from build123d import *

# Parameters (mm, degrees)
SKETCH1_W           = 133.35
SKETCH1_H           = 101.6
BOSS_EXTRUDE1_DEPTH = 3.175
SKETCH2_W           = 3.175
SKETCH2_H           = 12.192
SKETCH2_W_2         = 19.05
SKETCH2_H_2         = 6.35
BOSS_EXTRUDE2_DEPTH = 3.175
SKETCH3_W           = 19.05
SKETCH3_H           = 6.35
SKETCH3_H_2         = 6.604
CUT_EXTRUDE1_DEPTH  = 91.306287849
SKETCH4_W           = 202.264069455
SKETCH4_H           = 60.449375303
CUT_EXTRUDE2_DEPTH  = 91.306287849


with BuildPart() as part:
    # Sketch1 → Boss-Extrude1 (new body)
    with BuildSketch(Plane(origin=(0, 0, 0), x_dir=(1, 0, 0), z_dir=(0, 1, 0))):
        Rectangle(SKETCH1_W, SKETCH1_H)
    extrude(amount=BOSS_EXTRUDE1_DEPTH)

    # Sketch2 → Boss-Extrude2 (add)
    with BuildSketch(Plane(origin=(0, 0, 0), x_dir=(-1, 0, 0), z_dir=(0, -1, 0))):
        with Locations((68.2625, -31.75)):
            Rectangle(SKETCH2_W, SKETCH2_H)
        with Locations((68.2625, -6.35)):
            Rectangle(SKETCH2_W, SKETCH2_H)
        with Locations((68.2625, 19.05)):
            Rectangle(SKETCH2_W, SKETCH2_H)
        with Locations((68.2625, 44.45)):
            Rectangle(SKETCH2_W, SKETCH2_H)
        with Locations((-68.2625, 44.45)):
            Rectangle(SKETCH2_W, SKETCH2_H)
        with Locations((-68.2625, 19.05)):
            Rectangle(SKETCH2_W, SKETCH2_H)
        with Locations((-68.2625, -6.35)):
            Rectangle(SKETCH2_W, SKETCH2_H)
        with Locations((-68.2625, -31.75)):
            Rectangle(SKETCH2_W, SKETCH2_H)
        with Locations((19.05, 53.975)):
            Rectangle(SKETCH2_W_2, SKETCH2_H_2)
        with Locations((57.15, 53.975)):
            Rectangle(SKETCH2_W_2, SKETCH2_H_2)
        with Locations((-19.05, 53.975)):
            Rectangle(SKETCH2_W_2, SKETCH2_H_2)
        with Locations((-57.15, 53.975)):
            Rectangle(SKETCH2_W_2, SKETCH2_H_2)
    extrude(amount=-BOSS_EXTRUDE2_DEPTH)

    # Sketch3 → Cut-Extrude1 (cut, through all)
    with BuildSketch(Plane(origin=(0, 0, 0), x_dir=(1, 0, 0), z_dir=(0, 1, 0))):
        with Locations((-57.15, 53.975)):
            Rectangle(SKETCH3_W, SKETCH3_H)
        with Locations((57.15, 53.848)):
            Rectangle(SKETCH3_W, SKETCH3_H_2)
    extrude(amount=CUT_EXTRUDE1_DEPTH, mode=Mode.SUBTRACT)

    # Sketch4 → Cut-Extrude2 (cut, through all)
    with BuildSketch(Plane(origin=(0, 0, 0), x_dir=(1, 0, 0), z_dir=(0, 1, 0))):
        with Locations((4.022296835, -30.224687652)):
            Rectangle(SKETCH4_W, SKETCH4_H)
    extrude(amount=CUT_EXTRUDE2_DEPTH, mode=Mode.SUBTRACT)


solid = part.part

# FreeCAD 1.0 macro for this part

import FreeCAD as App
import Part
import Sketcher

V = App.Vector
Q = App.Units.Quantity


def add_polygon(sketch, points):
    """Adds a closed chain of lines whose ends are joined by coincident constraints."""
    first, n = sketch.GeometryCount, len(points)
    for a, b in zip(points, points[1:] + points[:1]):
        sketch.addGeometry(Part.LineSegment(App.Vector(*a, 0), App.Vector(*b, 0)), False)
    for i in range(n):
        sketch.addConstraint(Sketcher.Constraint("Coincident", first + i, 2, first + (i + 1) % n, 1))

doc = App.newDocument("Part")
params = doc.addObject("Spreadsheet::Sheet", "Params")
for row, (alias, value) in enumerate([
    ("sketch1_height", "4 in"),
    ("sketch1_width", "5.25 in"),
    ("pad1_length", "0.125 in"),
    ("sketch2_width", "0.75 in"),
    ("sketch2_height", "0.48 in"),
    ("sketch2_height2", "0.25 in"),
    ("pad2_length", "0.125 in"),
    ("sketch3_width", "0.75 in"),
    ("sketch3_height", "0.25 in"),
    ("sketch3_height2", "0.26 in"),
], start=1):
    params.set(f"A{row}", alias)
    params.set(f"B{row}", "=" + value)
    params.setAlias(f"B{row}", alias)

body = doc.addObject("PartDesign::Body", "Body")

# Sketch on XZ plane
sketch1 = body.newObject("Sketcher::SketchObject", "Sketch")
sketch1.AttachmentSupport = (doc.getObject("XZ_Plane"), [""])
sketch1.MapMode = "FlatFace"
add_polygon(sketch1, [(-66.675, -50.8), (-66.675, 50.8), (66.675, 50.8), (66.675, -50.8)])  # lines 0-3
sketch1.addConstraint(Sketcher.Constraint("Vertical", 0))
sketch1.addConstraint(Sketcher.Constraint("Horizontal", 1))
sketch1.addConstraint(Sketcher.Constraint("Vertical", 2))
sketch1.addConstraint(Sketcher.Constraint("Horizontal", 3))
sketch1.addConstraint(Sketcher.Constraint("Symmetric", 0, 2, 2, 2, -1, 1))
sketch1.addConstraint(Sketcher.Constraint("DistanceY", 0, 1, 0, 2, Q("4 in")))
sketch1.addConstraint(Sketcher.Constraint("DistanceX", 1, 1, 1, 2, Q("5.25 in")))
sketch1.setExpression("Constraints[9]", "Params.sketch1_height")
sketch1.setExpression("Constraints[10]", "Params.sketch1_width")
pad1 = body.newObject("PartDesign::Pad", "Pad")
pad1.Profile = sketch1
pad1.setExpression("Length", "Params.pad1_length")
pad1.Reversed = True

# Sketch on XZ plane
sketch2 = body.newObject("Sketcher::SketchObject", "Sketch001")
sketch2.AttachmentSupport = (doc.getObject("XZ_Plane"), [""])
sketch2.MapMode = "FlatFace"
add_polygon(sketch2, [(-66.675, 25.654), (-66.675, 37.846), (-69.85, 37.846), (-69.85, 25.654)])  # lines 0-3
add_polygon(sketch2, [(-66.675, 0.254), (-66.675, 12.446), (-69.85, 12.446), (-69.85, 0.254)])  # lines 4-7
add_polygon(sketch2, [(-66.675, -25.146), (-66.675, -12.954), (-69.85, -12.954), (-69.85, -25.146)])  # lines 8-11
add_polygon(sketch2, [(-66.675, -50.546), (-66.675, -38.354), (-69.85, -38.354), (-69.85, -50.546)])  # lines 12-15
add_polygon(sketch2, [(69.85, -50.546), (69.85, -38.354), (66.675, -38.354), (66.675, -50.546)])  # lines 16-19
add_polygon(sketch2, [(69.85, -25.146), (69.85, -12.954), (66.675, -12.954), (66.675, -25.146)])  # lines 20-23
add_polygon(sketch2, [(69.85, 0.254), (69.85, 12.446), (66.675, 12.446), (66.675, 0.254)])  # lines 24-27
add_polygon(sketch2, [(69.85, 25.654), (69.85, 37.846), (66.675, 37.846), (66.675, 25.654)])  # lines 28-31
add_polygon(sketch2, [(-9.525, -57.15), (-9.525, -50.8), (-28.575, -50.8), (-28.575, -57.15)])  # lines 32-35
add_polygon(sketch2, [(-47.625, -57.15), (-47.625, -50.8), (-66.675, -50.8), (-66.675, -57.15)])  # lines 36-39
add_polygon(sketch2, [(28.575, -57.15), (28.575, -50.8), (9.525, -50.8), (9.525, -57.15)])  # lines 40-43
add_polygon(sketch2, [(66.675, -57.15), (66.675, -50.8), (47.625, -50.8), (47.625, -57.15)])  # lines 44-47
sketch2.addConstraint(Sketcher.Constraint("Vertical", 0))
sketch2.addConstraint(Sketcher.Constraint("Horizontal", 1))
sketch2.addConstraint(Sketcher.Constraint("Vertical", 2))
sketch2.addConstraint(Sketcher.Constraint("Horizontal", 3))
sketch2.addConstraint(Sketcher.Constraint("Vertical", 4))
sketch2.addConstraint(Sketcher.Constraint("Horizontal", 5))
sketch2.addConstraint(Sketcher.Constraint("Vertical", 6))
sketch2.addConstraint(Sketcher.Constraint("Horizontal", 7))
sketch2.addConstraint(Sketcher.Constraint("Vertical", 8))
sketch2.addConstraint(Sketcher.Constraint("Horizontal", 9))
sketch2.addConstraint(Sketcher.Constraint("Vertical", 10))
sketch2.addConstraint(Sketcher.Constraint("Horizontal", 11))
sketch2.addConstraint(Sketcher.Constraint("Vertical", 12))
sketch2.addConstraint(Sketcher.Constraint("Horizontal", 13))
sketch2.addConstraint(Sketcher.Constraint("Vertical", 14))
sketch2.addConstraint(Sketcher.Constraint("Horizontal", 15))
sketch2.addConstraint(Sketcher.Constraint("Vertical", 16))
sketch2.addConstraint(Sketcher.Constraint("Horizontal", 17))
sketch2.addConstraint(Sketcher.Constraint("Vertical", 18))
sketch2.addConstraint(Sketcher.Constraint("Horizontal", 19))
sketch2.addConstraint(Sketcher.Constraint("Vertical", 20))
sketch2.addConstraint(Sketcher.Constraint("Horizontal", 21))
sketch2.addConstraint(Sketcher.Constraint("Vertical", 22))
sketch2.addConstraint(Sketcher.Constraint("Horizontal", 23))
sketch2.addConstraint(Sketcher.Constraint("Vertical", 24))
sketch2.addConstraint(Sketcher.Constraint("Horizontal", 25))
sketch2.addConstraint(Sketcher.Constraint("Vertical", 26))
sketch2.addConstraint(Sketcher.Constraint("Horizontal", 27))
sketch2.addConstraint(Sketcher.Constraint("Vertical", 28))
sketch2.addConstraint(Sketcher.Constraint("Horizontal", 29))
sketch2.addConstraint(Sketcher.Constraint("Vertical", 30))
sketch2.addConstraint(Sketcher.Constraint("Horizontal", 31))
sketch2.addConstraint(Sketcher.Constraint("Vertical", 32))
sketch2.addConstraint(Sketcher.Constraint("Horizontal", 33))
sketch2.addConstraint(Sketcher.Constraint("Vertical", 34))
sketch2.addConstraint(Sketcher.Constraint("Horizontal", 35))
sketch2.addConstraint(Sketcher.Constraint("Vertical", 36))
sketch2.addConstraint(Sketcher.Constraint("Horizontal", 37))
sketch2.addConstraint(Sketcher.Constraint("Vertical", 38))
sketch2.addConstraint(Sketcher.Constraint("Horizontal", 39))
sketch2.addConstraint(Sketcher.Constraint("Vertical", 40))
sketch2.addConstraint(Sketcher.Constraint("Horizontal", 41))
sketch2.addConstraint(Sketcher.Constraint("Vertical", 42))
sketch2.addConstraint(Sketcher.Constraint("Horizontal", 43))
sketch2.addConstraint(Sketcher.Constraint("Vertical", 44))
sketch2.addConstraint(Sketcher.Constraint("Horizontal", 45))
sketch2.addConstraint(Sketcher.Constraint("Vertical", 46))
sketch2.addConstraint(Sketcher.Constraint("Horizontal", 47))
sketch2.addConstraint(Sketcher.Constraint("Symmetric", 13, 2, 16, 2, -2))
sketch2.addConstraint(Sketcher.Constraint("Symmetric", 15, 2, 18, 2, -2))
sketch2.addConstraint(Sketcher.Constraint("Symmetric", 9, 2, 20, 2, -2))
sketch2.addConstraint(Sketcher.Constraint("Symmetric", 11, 2, 22, 2, -2))
sketch2.addConstraint(Sketcher.Constraint("Symmetric", 5, 2, 24, 2, -2))
sketch2.addConstraint(Sketcher.Constraint("Symmetric", 7, 2, 26, 2, -2))
sketch2.addConstraint(Sketcher.Constraint("Symmetric", 1, 2, 28, 2, -2))
sketch2.addConstraint(Sketcher.Constraint("Symmetric", 3, 2, 30, 2, -2))
sketch2.addConstraint(Sketcher.Constraint("Symmetric", 33, 2, 40, 2, -2))
sketch2.addConstraint(Sketcher.Constraint("Symmetric", 35, 2, 42, 2, -2))
sketch2.addConstraint(Sketcher.Constraint("Symmetric", 37, 2, 44, 2, -2))
sketch2.addConstraint(Sketcher.Constraint("Symmetric", 39, 2, 46, 2, -2))
sketch2.addConstraint(Sketcher.Constraint("Horizontal", 33, 2, 36, 2))
sketch2.addConstraint(Sketcher.Constraint("Horizontal", 35, 2, 38, 2))
sketch2.addConstraint(Sketcher.Constraint("Vertical", 3, 2, 4, 2))
sketch2.addConstraint(Sketcher.Constraint("Vertical", 2, 2, 5, 2))
sketch2.addConstraint(Sketcher.Constraint("Vertical", 7, 2, 8, 2))
sketch2.addConstraint(Sketcher.Constraint("Vertical", 6, 2, 9, 2))
sketch2.addConstraint(Sketcher.Constraint("Vertical", 11, 2, 12, 2))
sketch2.addConstraint(Sketcher.Constraint("Vertical", 10, 2, 13, 2))
sketch2.addConstraint(Sketcher.Constraint("Vertical", 15, 2, 37, 2))
sketch2.addConstraint(Sketcher.Constraint("Equal", 35, 37))
sketch2.addConstraint(Sketcher.Constraint("Equal", 2, 4))
sketch2.addConstraint(Sketcher.Constraint("Equal", 6, 8))
sketch2.addConstraint(Sketcher.Constraint("Equal", 10, 12))
sketch2.addConstraint(Sketcher.Constraint("DistanceY", 32, 2, -1, 1, Q("2 in")))
sketch2.addConstraint(Sketcher.Constraint("DistanceY", 4, 2, 0, 2, Q("1 in")))
sketch2.addConstraint(Sketcher.Constraint("DistanceY", 8, 2, 4, 2, Q("1 in")))
sketch2.addConstraint(Sketcher.Constraint("DistanceY", 12, 2, 8, 2, Q("1 in")))
sketch2.addConstraint(Sketcher.Constraint("DistanceX", 33, 2, 33, 1, Q("0.75 in")))
sketch2.addConstraint(Sketcher.Constraint("DistanceY", 0, 1, 0, 2, Q("0.48 in")))
sketch2.addConstraint(Sketcher.Constraint("DistanceY", 32, 1, 32, 2, Q("0.25 in")))
sketch2.addConstraint(Sketcher.Constraint("DistanceX", 13, 2, 16, 2, Q("5.5 in")))
sketch2.addConstraint(Sketcher.Constraint("DistanceX", 15, 2, 33, 2, Q("1.5 in")))
sketch2.addConstraint(Sketcher.Constraint("DistanceX", 32, 2, 40, 2, Q("1.5 in")))
sketch2.addConstraint(Sketcher.Constraint("DistanceY", -1, 1, 0, 2, Q("1.49 in")))
sketch2.setExpression("Constraints[125]", "Params.sketch2_width")
sketch2.setExpression("Constraints[126]", "Params.sketch2_height")
sketch2.setExpression("Constraints[127]", "Params.sketch2_height2")
pad2 = body.newObject("PartDesign::Pad", "Pad001")
pad2.Profile = sketch2
pad2.setExpression("Length", "Params.pad2_length")
pad2.Reversed = True

# Sketch on XZ plane
sketch3 = body.newObject("Sketcher::SketchObject", "Sketch002")
sketch3.AttachmentSupport = (doc.getObject("XZ_Plane"), [""])
sketch3.MapMode = "FlatFace"
add_polygon(sketch3, [(-66.675, -57.15), (-66.675, -50.8), (-47.625, -50.8), (-47.625, -57.15)])  # lines 0-3
add_polygon(sketch3, [(47.625, -57.15), (47.625, -50.546), (66.675, -50.546), (66.675, -57.15)])  # lines 4-7
sketch3.addConstraint(Sketcher.Constraint("Vertical", 0))
sketch3.addConstraint(Sketcher.Constraint("Horizontal", 1))
sketch3.addConstraint(Sketcher.Constraint("Vertical", 2))
sketch3.addConstraint(Sketcher.Constraint("Horizontal", 3))
sketch3.addConstraint(Sketcher.Constraint("Vertical", 4))
sketch3.addConstraint(Sketcher.Constraint("Horizontal", 5))
sketch3.addConstraint(Sketcher.Constraint("Vertical", 6))
sketch3.addConstraint(Sketcher.Constraint("Horizontal", 7))
sketch3.addConstraint(Sketcher.Constraint("Symmetric", 3, 2, 6, 2, -2))
sketch3.addConstraint(Sketcher.Constraint("Equal", 3, 5))
sketch3.addConstraint(Sketcher.Constraint("DistanceY", 0, 2, -1, 1, Q("2 in")))
sketch3.addConstraint(Sketcher.Constraint("DistanceX", 1, 1, 1, 2, Q("0.75 in")))
sketch3.addConstraint(Sketcher.Constraint("DistanceY", 0, 1, 0, 2, Q("0.25 in")))
sketch3.addConstraint(Sketcher.Constraint("DistanceY", 4, 1, 4, 2, Q("0.26 in")))
sketch3.addConstraint(Sketcher.Constraint("DistanceX", 0, 2, 4, 2, Q("4.5 in")))
sketch3.setExpression("Constraints[19]", "Params.sketch3_width")
sketch3.setExpression("Constraints[20]", "Params.sketch3_height")
sketch3.setExpression("Constraints[21]", "Params.sketch3_height2")
pocket1 = body.newObject("PartDesign::Pocket", "Pocket")
pocket1.Profile = sketch3
pocket1.Type = "ThroughAll"

# Sketch on XZ plane
sketch4 = body.newObject("Sketcher::SketchObject", "Sketch003")
sketch4.AttachmentSupport = (doc.getObject("XZ_Plane"), [""])
sketch4.MapMode = "FlatFace"
add_polygon(sketch4, [(-97.109738, 0), (-97.109738, 60.449375), (105.154332, 60.449375), (105.154332, 0)])  # lines 0-3
sketch4.addConstraint(Sketcher.Constraint("Vertical", 0))
sketch4.addConstraint(Sketcher.Constraint("Horizontal", 1))
sketch4.addConstraint(Sketcher.Constraint("Vertical", 2))
sketch4.addConstraint(Sketcher.Constraint("Horizontal", 3))
sketch4.addConstraint(Sketcher.Constraint("PointOnObject", 2, 2, -1))
sketch4.addConstraint(Sketcher.Constraint("DistanceX", 1, 1, 1, 2, 202.264069))
sketch4.addConstraint(Sketcher.Constraint("DistanceY", 0, 1, 0, 2, 60.449375))
sketch4.addConstraint(Sketcher.Constraint("DistanceX", -1, 1, 1, 2, 105.154332))
pocket2 = body.newObject("PartDesign::Pocket", "Pocket001")
pocket2.Profile = sketch4
pocket2.Type = "ThroughAll"

doc.recompute()
